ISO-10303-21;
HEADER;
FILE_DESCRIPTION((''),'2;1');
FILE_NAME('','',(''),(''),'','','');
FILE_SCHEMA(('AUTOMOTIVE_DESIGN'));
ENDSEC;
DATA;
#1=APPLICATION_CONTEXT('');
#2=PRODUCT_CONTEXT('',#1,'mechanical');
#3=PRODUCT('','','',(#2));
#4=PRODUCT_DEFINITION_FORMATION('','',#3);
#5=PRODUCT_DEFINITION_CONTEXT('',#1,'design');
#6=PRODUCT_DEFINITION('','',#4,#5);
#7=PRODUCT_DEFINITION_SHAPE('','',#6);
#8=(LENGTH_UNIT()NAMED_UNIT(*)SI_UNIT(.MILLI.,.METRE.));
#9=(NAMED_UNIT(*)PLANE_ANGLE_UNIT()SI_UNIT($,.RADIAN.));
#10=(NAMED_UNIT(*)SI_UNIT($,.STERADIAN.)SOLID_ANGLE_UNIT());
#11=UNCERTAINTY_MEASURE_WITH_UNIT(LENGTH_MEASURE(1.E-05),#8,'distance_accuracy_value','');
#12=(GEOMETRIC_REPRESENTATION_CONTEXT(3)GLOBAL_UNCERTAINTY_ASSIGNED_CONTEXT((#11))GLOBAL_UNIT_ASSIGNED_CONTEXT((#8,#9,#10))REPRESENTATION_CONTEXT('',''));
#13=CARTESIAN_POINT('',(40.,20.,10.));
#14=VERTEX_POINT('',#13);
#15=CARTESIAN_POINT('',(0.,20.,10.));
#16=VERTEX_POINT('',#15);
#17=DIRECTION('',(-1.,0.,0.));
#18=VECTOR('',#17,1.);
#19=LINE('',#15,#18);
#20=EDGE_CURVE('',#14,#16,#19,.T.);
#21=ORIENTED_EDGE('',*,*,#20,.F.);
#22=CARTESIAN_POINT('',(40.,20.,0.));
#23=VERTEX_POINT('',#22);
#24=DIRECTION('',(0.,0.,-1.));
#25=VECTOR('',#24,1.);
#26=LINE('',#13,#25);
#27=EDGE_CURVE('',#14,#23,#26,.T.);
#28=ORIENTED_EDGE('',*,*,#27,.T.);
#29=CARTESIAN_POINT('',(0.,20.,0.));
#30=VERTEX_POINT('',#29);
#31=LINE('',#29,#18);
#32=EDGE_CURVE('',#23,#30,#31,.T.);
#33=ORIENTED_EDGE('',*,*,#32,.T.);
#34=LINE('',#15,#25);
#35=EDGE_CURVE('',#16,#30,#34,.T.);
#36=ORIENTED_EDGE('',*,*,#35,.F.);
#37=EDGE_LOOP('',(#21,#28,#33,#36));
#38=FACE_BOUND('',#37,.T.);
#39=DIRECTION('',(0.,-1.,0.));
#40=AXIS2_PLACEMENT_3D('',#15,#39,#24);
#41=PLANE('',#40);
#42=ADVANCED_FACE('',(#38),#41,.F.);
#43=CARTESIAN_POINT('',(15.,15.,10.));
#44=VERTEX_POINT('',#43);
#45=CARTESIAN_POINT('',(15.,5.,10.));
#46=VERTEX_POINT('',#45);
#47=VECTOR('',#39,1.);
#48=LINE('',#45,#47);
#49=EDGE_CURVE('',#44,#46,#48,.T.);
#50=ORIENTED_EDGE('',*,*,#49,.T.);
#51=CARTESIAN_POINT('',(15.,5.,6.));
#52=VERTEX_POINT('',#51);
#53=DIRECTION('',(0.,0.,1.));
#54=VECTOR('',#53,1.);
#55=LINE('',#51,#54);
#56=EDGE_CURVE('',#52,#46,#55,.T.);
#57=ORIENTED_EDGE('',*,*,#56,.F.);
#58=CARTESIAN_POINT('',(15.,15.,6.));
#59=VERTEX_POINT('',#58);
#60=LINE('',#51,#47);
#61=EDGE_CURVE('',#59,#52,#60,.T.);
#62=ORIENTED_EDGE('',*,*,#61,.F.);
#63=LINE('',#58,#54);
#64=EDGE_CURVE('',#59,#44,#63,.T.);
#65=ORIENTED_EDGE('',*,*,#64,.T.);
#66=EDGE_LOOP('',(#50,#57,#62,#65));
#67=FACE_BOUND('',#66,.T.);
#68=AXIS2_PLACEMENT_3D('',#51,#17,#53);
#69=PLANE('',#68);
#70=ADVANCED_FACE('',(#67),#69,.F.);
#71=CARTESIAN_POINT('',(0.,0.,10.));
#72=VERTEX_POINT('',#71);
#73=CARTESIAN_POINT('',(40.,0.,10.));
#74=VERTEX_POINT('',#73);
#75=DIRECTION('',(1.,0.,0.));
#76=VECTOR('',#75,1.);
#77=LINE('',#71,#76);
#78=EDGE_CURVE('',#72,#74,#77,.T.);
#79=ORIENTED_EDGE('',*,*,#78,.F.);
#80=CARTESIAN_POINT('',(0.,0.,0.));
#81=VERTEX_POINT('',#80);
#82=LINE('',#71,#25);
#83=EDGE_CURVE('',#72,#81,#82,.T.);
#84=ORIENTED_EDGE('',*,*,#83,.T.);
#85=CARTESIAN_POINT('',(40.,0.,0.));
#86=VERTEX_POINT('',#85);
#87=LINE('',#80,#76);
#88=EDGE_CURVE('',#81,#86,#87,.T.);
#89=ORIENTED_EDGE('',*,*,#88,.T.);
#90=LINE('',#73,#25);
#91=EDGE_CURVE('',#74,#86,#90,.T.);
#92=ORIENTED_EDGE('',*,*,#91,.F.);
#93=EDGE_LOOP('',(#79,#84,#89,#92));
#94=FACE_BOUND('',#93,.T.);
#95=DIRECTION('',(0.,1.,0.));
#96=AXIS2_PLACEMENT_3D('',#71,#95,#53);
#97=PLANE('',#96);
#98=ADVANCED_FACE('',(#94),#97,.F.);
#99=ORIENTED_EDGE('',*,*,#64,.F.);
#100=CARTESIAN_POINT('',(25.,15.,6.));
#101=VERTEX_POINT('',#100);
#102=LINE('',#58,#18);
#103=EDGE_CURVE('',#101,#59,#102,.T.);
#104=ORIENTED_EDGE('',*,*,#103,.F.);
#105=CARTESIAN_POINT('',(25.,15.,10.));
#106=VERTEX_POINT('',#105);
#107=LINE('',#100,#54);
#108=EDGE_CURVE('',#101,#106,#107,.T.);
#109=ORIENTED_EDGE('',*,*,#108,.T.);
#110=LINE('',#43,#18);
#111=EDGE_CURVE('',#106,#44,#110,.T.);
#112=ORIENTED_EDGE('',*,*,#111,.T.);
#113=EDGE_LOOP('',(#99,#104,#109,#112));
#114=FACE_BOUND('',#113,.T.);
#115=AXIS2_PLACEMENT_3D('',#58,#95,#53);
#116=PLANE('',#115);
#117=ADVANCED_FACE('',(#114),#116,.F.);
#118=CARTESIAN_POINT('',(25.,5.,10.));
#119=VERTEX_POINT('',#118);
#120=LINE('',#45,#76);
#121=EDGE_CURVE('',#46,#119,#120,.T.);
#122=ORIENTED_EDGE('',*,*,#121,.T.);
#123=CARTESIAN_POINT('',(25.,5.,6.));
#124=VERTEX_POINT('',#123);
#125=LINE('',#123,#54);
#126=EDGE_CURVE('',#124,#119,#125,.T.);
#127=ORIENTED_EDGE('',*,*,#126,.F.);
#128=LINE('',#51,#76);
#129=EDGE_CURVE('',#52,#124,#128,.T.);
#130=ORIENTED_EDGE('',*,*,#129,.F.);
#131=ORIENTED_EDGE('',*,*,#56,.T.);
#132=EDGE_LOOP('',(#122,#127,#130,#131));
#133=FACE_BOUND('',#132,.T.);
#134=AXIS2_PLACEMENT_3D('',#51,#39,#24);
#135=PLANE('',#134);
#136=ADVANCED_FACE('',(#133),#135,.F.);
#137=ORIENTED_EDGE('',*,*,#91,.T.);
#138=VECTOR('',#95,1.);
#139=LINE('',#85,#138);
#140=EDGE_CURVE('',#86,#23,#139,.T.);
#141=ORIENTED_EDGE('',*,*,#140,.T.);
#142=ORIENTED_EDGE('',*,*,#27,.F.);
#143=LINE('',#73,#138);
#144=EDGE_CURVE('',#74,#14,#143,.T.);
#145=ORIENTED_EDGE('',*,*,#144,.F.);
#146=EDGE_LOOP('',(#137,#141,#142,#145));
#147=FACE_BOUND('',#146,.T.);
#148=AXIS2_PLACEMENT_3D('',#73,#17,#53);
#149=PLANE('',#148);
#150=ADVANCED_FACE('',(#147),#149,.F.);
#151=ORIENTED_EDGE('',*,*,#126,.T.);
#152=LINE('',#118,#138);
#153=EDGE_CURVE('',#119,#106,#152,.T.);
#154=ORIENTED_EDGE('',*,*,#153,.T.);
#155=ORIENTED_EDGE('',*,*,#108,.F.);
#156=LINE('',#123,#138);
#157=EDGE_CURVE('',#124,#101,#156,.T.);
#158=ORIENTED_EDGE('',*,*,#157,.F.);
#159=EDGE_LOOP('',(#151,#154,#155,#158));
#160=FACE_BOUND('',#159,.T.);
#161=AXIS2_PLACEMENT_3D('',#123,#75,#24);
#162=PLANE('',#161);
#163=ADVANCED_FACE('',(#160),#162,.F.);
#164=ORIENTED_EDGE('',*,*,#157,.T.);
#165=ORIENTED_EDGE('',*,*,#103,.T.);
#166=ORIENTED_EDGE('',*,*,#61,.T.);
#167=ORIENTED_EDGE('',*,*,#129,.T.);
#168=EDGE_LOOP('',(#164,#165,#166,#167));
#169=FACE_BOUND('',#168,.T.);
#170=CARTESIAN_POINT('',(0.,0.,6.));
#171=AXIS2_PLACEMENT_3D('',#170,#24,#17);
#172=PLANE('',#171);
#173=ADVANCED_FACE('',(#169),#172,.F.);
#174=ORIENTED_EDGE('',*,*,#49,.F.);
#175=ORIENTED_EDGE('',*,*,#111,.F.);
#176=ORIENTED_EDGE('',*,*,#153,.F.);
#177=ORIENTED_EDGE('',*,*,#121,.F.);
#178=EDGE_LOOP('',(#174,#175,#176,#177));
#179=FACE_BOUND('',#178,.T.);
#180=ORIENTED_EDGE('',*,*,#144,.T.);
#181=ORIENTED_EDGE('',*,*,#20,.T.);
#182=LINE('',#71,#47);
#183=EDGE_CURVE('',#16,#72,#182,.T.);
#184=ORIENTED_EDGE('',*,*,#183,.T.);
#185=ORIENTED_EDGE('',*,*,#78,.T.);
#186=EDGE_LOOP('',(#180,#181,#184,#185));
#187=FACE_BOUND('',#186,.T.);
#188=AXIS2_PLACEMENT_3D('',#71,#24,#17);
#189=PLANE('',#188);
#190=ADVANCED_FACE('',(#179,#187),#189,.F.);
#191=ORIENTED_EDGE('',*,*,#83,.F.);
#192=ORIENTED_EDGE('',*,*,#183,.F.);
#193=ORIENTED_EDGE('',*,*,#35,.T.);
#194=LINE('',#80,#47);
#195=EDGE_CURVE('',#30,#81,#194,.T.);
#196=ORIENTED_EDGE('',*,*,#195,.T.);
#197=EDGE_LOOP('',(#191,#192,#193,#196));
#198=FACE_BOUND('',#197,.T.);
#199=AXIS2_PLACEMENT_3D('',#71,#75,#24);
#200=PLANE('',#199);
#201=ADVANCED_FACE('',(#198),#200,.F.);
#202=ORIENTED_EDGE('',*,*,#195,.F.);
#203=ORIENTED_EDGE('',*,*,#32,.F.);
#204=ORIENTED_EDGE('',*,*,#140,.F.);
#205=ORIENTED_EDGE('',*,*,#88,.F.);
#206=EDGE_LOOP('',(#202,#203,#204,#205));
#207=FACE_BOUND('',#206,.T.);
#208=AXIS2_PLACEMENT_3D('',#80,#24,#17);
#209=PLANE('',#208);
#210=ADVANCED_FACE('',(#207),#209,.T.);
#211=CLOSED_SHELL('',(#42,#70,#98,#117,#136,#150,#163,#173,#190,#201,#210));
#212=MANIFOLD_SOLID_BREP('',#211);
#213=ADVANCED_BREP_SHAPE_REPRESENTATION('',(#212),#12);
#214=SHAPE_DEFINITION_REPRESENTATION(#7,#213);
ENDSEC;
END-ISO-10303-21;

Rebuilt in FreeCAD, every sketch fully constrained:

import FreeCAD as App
import Part
import Sketcher

V = App.Vector

doc = App.newDocument("Part")
params = doc.addObject("Spreadsheet::Sheet", "Params")
for row, (alias, value) in enumerate([
    ("sketch1_width", "40 mm"),
    ("sketch1_height", "20 mm"),
    ("pad1_length", "10 mm"),
    ("sketch2_width", "10 mm"),
    ("pocket1_length", "4 mm"),
], start=1):
    params.set(f"A{row}", alias)
    params.set(f"B{row}", "=" + value)
    params.setAlias(f"B{row}", alias)

body = doc.addObject("PartDesign::Body", "Body")

sketch1 = doc.addObject("Sketcher::SketchObject", "Sketch")
body.addObject(sketch1)
sketch1.AttachmentSupport = (doc.XY_Plane, [""])
sketch1.MapMode = "FlatFace"
sketch1.addGeometry([
    Part.LineSegment(V(0, 20, 0), V(0, 0, 0)),
    Part.LineSegment(V(0, 0, 0), V(40, 0, 0)),
    Part.LineSegment(V(40, 0, 0), V(40, 20, 0)),
    Part.LineSegment(V(40, 20, 0), V(0, 20, 0)),
], False)
sketch1.addConstraint([
    Sketcher.Constraint("Coincident", 0, 2, 1, 1),
    Sketcher.Constraint("Coincident", 1, 2, 2, 1),
    Sketcher.Constraint("Coincident", 2, 2, 3, 1),
    Sketcher.Constraint("Coincident", 3, 2, 0, 1),
    Sketcher.Constraint("Vertical", 0),
    Sketcher.Constraint("Horizontal", 1),
    Sketcher.Constraint("Vertical", 2),
    Sketcher.Constraint("Horizontal", 3),
    Sketcher.Constraint("Coincident", 0, 2, -1, 1),
    Sketcher.Constraint("DistanceX", 1, 1, 1, 2, 40.0),
    Sketcher.Constraint("DistanceY", 0, 2, 0, 1, 20.0),
])
sketch1.setExpression("Constraints[9]", "Params.sketch1_width")
sketch1.setExpression("Constraints[10]", "Params.sketch1_height")
pad1 = doc.addObject("PartDesign::Pad", "Pad")
body.addObject(pad1)
pad1.Profile = sketch1
pad1.setExpression("Length", "Params.pad1_length")

sketch2 = doc.addObject("Sketcher::SketchObject", "Sketch001")
body.addObject(sketch2)
sketch2.AttachmentSupport = (doc.XY_Plane, [""])
sketch2.MapMode = "FlatFace"
sketch2.AttachmentOffset = App.Placement(V(0, 0, 10), App.Rotation())
sketch2.addGeometry([
    Part.LineSegment(V(15, 15, 0), V(15, 5, 0)),
    Part.LineSegment(V(15, 5, 0), V(25, 5, 0)),
    Part.LineSegment(V(25, 5, 0), V(25, 15, 0)),
    Part.LineSegment(V(25, 15, 0), V(15, 15, 0)),
], False)
sketch2.addConstraint([
    Sketcher.Constraint("Coincident", 0, 2, 1, 1),
    Sketcher.Constraint("Coincident", 1, 2, 2, 1),
    Sketcher.Constraint("Coincident", 2, 2, 3, 1),
    Sketcher.Constraint("Coincident", 3, 2, 0, 1),
    Sketcher.Constraint("Vertical", 0),
    Sketcher.Constraint("Horizontal", 1),
    Sketcher.Constraint("Vertical", 2),
    Sketcher.Constraint("Horizontal", 3),
    Sketcher.Constraint("Equal", 3, 0),
    Sketcher.Constraint("DistanceX", 1, 1, 1, 2, 10.0),
    Sketcher.Constraint("DistanceX", -1, 1, 0, 2, 15.0),
    Sketcher.Constraint("DistanceY", -1, 1, 0, 2, 5.0),
])
sketch2.setExpression("Constraints[9]", "Params.sketch2_width")
pocket1 = doc.addObject("PartDesign::Pocket", "Pocket")
body.addObject(pocket1)
pocket1.Profile = sketch2
pocket1.setExpression("Length", "Params.pocket1_length")

doc.recompute()
